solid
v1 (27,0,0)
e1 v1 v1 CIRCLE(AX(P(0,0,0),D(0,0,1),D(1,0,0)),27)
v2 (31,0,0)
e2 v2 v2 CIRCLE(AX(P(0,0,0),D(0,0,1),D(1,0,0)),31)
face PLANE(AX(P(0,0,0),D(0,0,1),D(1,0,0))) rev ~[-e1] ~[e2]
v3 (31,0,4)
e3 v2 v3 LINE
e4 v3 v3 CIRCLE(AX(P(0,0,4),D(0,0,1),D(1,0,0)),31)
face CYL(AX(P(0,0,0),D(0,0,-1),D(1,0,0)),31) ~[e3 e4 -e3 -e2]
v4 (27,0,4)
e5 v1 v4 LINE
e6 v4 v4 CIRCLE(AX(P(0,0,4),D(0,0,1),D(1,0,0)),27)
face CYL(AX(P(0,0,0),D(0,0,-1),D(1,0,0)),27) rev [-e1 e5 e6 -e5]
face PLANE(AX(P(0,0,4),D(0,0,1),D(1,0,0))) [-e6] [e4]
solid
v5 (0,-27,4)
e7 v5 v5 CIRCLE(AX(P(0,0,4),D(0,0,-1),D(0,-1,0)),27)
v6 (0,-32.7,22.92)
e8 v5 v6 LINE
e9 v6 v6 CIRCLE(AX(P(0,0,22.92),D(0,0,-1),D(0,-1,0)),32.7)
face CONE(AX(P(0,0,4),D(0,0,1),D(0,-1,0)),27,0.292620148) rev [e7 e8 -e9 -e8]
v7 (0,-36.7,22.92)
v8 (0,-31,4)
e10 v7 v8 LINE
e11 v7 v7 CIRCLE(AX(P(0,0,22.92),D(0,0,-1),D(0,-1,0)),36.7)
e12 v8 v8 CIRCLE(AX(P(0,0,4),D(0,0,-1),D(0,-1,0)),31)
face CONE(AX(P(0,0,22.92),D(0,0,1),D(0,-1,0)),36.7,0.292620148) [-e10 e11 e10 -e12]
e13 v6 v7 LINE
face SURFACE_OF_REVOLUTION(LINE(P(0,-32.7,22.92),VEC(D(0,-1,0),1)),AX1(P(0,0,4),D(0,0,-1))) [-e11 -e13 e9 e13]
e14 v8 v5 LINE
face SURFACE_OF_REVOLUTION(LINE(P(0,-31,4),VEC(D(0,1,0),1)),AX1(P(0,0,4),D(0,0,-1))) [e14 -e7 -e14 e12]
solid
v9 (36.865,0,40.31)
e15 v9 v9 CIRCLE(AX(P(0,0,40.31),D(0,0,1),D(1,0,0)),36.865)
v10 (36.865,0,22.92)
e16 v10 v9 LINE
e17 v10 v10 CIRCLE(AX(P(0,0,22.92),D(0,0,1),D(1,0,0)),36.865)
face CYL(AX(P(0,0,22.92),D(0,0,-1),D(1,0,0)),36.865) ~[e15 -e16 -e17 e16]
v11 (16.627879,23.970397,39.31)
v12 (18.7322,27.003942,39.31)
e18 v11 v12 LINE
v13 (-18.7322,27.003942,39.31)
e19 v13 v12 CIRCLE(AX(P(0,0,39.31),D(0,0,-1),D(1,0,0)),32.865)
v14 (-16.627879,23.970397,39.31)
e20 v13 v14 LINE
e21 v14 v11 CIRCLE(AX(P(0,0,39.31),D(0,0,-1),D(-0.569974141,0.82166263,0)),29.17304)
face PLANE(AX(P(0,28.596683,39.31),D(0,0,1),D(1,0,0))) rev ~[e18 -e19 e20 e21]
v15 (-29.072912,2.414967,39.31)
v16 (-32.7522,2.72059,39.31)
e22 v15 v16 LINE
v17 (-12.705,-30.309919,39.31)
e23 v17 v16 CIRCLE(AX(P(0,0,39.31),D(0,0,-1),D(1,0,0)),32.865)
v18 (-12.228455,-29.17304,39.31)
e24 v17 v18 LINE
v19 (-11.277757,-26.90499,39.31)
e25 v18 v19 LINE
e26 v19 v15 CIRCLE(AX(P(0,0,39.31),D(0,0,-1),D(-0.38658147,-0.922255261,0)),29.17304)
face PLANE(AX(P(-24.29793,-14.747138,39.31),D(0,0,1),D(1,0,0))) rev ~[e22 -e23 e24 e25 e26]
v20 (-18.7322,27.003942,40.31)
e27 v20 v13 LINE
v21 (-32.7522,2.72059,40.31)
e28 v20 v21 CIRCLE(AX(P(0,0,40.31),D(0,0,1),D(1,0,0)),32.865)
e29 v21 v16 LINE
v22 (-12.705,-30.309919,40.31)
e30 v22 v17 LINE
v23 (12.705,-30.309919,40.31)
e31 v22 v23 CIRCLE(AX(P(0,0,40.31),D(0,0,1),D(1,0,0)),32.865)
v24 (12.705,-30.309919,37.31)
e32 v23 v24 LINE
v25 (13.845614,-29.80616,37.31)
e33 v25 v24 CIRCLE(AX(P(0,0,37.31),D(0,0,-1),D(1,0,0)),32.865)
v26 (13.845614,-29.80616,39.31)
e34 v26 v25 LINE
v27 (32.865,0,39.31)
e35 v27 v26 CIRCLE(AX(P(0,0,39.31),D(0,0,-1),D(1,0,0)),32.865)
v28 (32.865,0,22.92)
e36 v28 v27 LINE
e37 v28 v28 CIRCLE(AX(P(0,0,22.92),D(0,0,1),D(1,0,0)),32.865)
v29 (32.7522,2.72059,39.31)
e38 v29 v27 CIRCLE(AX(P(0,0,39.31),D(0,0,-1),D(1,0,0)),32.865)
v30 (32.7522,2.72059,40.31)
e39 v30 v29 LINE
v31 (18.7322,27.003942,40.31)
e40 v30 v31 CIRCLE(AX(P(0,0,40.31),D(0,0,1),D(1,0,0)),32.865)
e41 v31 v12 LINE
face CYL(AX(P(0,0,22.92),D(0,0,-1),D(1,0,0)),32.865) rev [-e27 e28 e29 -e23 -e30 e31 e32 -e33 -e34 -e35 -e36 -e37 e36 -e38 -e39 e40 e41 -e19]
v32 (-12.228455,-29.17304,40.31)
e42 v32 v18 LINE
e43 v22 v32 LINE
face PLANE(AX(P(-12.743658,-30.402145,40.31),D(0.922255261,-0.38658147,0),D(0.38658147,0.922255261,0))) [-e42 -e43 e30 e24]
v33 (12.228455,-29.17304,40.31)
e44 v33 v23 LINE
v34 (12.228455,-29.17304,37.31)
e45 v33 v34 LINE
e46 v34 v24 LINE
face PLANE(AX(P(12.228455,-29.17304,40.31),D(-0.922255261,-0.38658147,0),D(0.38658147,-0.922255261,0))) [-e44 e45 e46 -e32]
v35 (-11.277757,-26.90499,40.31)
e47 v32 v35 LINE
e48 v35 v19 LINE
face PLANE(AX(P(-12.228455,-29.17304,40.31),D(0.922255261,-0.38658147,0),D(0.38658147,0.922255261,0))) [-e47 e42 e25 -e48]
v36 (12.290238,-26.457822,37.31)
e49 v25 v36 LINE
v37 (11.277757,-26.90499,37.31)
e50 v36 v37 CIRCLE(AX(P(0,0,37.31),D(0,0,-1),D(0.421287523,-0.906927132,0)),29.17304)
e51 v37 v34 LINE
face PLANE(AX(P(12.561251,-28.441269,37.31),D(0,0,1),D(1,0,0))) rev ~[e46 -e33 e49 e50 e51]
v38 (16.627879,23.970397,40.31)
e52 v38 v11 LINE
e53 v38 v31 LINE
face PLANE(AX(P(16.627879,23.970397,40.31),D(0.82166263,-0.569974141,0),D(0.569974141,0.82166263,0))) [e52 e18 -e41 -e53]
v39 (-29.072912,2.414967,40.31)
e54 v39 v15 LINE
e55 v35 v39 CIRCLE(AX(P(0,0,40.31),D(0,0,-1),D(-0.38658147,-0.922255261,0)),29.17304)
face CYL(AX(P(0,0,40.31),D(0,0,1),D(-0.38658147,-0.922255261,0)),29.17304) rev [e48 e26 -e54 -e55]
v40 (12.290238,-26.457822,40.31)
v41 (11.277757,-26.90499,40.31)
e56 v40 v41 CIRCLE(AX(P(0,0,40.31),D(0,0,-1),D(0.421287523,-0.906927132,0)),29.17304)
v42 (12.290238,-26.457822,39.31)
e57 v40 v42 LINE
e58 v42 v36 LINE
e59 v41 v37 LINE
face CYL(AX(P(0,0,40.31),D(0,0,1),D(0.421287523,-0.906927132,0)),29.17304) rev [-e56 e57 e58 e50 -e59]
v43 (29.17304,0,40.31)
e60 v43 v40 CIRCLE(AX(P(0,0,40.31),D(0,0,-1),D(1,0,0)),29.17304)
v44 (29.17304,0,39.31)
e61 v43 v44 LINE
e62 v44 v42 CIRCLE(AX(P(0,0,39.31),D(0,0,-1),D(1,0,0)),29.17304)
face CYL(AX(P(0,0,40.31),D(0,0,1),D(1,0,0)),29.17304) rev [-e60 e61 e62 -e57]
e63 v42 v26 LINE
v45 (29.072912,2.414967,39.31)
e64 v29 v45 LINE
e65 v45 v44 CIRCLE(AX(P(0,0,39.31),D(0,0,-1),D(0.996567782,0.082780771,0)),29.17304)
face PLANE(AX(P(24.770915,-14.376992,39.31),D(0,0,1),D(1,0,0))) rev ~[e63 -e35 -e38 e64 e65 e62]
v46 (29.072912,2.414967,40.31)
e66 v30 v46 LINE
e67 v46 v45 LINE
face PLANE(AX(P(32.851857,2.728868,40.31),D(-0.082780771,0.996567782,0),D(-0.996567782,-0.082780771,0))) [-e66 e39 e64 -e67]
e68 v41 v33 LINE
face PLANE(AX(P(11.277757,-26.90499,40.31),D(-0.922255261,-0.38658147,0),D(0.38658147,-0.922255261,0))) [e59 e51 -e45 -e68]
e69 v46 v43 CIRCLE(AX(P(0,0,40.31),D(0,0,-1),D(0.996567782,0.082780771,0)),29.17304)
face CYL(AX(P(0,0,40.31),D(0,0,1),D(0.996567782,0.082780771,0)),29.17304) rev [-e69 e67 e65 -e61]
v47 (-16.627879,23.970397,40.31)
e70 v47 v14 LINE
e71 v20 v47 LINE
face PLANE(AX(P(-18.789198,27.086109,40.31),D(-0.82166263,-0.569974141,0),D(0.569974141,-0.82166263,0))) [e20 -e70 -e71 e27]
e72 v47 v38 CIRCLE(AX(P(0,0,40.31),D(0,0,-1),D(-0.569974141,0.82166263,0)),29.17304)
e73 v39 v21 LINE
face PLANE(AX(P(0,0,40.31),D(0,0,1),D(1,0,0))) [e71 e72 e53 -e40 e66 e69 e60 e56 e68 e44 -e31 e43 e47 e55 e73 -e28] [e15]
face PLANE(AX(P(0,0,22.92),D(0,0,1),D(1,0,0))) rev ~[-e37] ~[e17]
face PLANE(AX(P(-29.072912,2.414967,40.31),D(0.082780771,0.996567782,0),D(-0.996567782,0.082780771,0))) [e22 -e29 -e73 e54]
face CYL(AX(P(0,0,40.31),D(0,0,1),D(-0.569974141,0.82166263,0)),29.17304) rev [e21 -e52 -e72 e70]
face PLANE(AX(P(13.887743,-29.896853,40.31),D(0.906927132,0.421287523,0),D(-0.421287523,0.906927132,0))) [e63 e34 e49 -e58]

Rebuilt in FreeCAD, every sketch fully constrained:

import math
import FreeCAD as App
import Part
import Sketcher


def add_polygon(sketch, points):
    """Adds a closed chain of lines whose ends are joined by coincident constraints."""
    first, n = sketch.GeometryCount, len(points)
    for a, b in zip(points, points[1:] + points[:1]):
        sketch.addGeometry(Part.LineSegment(App.Vector(*a, 0), App.Vector(*b, 0)), False)
    for i in range(n):
        sketch.addConstraint(Sketcher.Constraint("Coincident", first + i, 2, first + (i + 1) % n, 1))

doc = App.newDocument("Part")
body = doc.addObject("PartDesign::Body", "Body")

# Sketch on XY plane
sketch1 = doc.addObject("Sketcher::SketchObject", "Sketch")
body.addObject(sketch1)
sketch1.AttachmentSupport = (doc.XY_Plane, [""])
sketch1.MapMode = "FlatFace"
sketch1.addGeometry(Part.Circle(App.Vector(0, 0, 0), App.Vector(0, 0, 1), 31), False)
sketch1.addGeometry(Part.Circle(App.Vector(0, 0, 0), App.Vector(0, 0, 1), 27), False)
sketch1.addConstraint(Sketcher.Constraint("Coincident", 0, 3, -1, 1))
sketch1.addConstraint(Sketcher.Constraint("Coincident", 1, 3, -1, 1))
sketch1.addConstraint(Sketcher.Constraint("Diameter", 0, 62.0))
sketch1.addConstraint(Sketcher.Constraint("Diameter", 1, 54.0))
pad1 = doc.addObject("PartDesign::Pad", "Pad")
body.addObject(pad1)
pad1.Profile = sketch1
pad1.Length = 4
body2 = doc.addObject("PartDesign::Body", "Body001")

# Sketch on XY plane
sketch2 = doc.addObject("Sketcher::SketchObject", "Sketch001")
body2.addObject(sketch2)
sketch2.AttachmentSupport = (doc.getObject("XY_Plane001"), [""])
sketch2.MapMode = "FlatFace"
sketch2.AttachmentOffset = App.Placement(App.Vector(0, 0, 22.92), App.Rotation())
sketch2.addGeometry(Part.Circle(App.Vector(0, 0, 0), App.Vector(0, 0, 1), 36.865), False)
sketch2.addGeometry(Part.Circle(App.Vector(0, 0, 0), App.Vector(0, 0, 1), 32.865), False)
sketch2.addConstraint(Sketcher.Constraint("Coincident", 0, 3, -1, 1))
sketch2.addConstraint(Sketcher.Constraint("Coincident", 1, 3, -1, 1))
sketch2.addConstraint(Sketcher.Constraint("Diameter", 0, 73.73))
sketch2.addConstraint(Sketcher.Constraint("Diameter", 1, 65.73))
pad2 = doc.addObject("PartDesign::Pad", "Pad001")
body2.addObject(pad2)
pad2.Profile = sketch2
pad2.Length = 17.39

# Sketch on XY plane
sketch3 = doc.addObject("Sketcher::SketchObject", "Sketch002")
body2.addObject(sketch3)
sketch3.AttachmentSupport = (doc.getObject("XY_Plane001"), [""])
sketch3.MapMode = "FlatFace"
sketch3.AttachmentOffset = App.Placement(App.Vector(0, 0, 40.31), App.Rotation())
sketch3.addGeometry(Part.ArcOfCircle(Part.Circle(App.Vector(0, 0, 0), App.Vector(0, 0, 1), 32.965), math.radians(175.251577), math.radians(247.258045)), False)
sketch3.addGeometry(Part.LineSegment(App.Vector(-12.743658, -30.402145, 0), App.Vector(-12.228455, -29.17304, 0)), False)
sketch3.addGeometry(Part.LineSegment(App.Vector(-12.228455, -29.17304, 0), App.Vector(-11.277757, -26.90499, 0)), False)
sketch3.addGeometry(Part.ArcOfCircle(Part.Circle(App.Vector(0, 0, 0), App.Vector(0, 0, 1), 29.17304), math.radians(175.251577), math.radians(247.258045)), False)
sketch3.addGeometry(Part.LineSegment(App.Vector(-29.072912, 2.414967, 0), App.Vector(-32.851857, 2.728868, 0)), False)
sketch3.addGeometry(Part.LineSegment(App.Vector(16.627879, 23.970397, 0), App.Vector(18.789198, 27.086109, 0)), False)
sketch3.addGeometry(Part.ArcOfCircle(Part.Circle(App.Vector(0, 0, 0), App.Vector(0, 0, 1), 32.965), math.radians(55.251577), math.radians(124.748423)), False)
sketch3.addGeometry(Part.LineSegment(App.Vector(-18.789198, 27.086109, 0), App.Vector(-16.627879, 23.970397, 0)), False)
sketch3.addGeometry(Part.ArcOfCircle(Part.Circle(App.Vector(0, 0, 0), App.Vector(0, 0, 1), 29.17304), math.radians(55.251577), math.radians(124.748423)), False)
sketch3.addGeometry(Part.ArcOfCircle(Part.Circle(App.Vector(0, 0, 0), App.Vector(0, 0, 1), 32.965), math.radians(-65.084099), math.radians(0)), False)
sketch3.addGeometry(Part.ArcOfCircle(Part.Circle(App.Vector(0, 0, 0), App.Vector(0, 0, 1), 32.965), math.radians(0), math.radians(4.748423)), False)
sketch3.addGeometry(Part.LineSegment(App.Vector(32.851857, 2.728868, 0), App.Vector(29.072912, 2.414967, 0)), False)
sketch3.addGeometry(Part.ArcOfCircle(Part.Circle(App.Vector(0, 0, 0), App.Vector(0, 0, 1), 29.17304), math.radians(0), math.radians(4.748423)), False)
sketch3.addGeometry(Part.ArcOfCircle(Part.Circle(App.Vector(0, 0, 0), App.Vector(0, 0, 1), 29.17304), math.radians(-65.084099), math.radians(0)), False)
sketch3.addGeometry(Part.LineSegment(App.Vector(12.290238, -26.457822, 0), App.Vector(13.887743, -29.896853, 0)), False)
sketch3.addConstraint(Sketcher.Constraint("Coincident", 0, 2, 1, 1))
sketch3.addConstraint(Sketcher.Constraint("Coincident", 1, 2, 2, 1))
sketch3.addConstraint(Sketcher.Constraint("Coincident", 2, 2, 3, 2))
sketch3.addConstraint(Sketcher.Constraint("Coincident", 3, 1, 4, 1))
sketch3.addConstraint(Sketcher.Constraint("Coincident", 4, 2, 0, 1))
sketch3.addConstraint(Sketcher.Constraint("Coincident", 5, 2, 6, 1))
sketch3.addConstraint(Sketcher.Constraint("Coincident", 6, 2, 7, 1))
sketch3.addConstraint(Sketcher.Constraint("Coincident", 7, 2, 8, 2))
sketch3.addConstraint(Sketcher.Constraint("Coincident", 8, 1, 5, 1))
sketch3.addConstraint(Sketcher.Constraint("Tangent", 9, 2, 10, 1))
sketch3.addConstraint(Sketcher.Constraint("Coincident", 10, 2, 11, 1))
sketch3.addConstraint(Sketcher.Constraint("Coincident", 11, 2, 12, 2))
sketch3.addConstraint(Sketcher.Constraint("Tangent", 12, 1, 13, 2))
sketch3.addConstraint(Sketcher.Constraint("Coincident", 13, 1, 14, 1))
sketch3.addConstraint(Sketcher.Constraint("Coincident", 14, 2, 9, 1))
sketch3.addConstraint(Sketcher.Constraint("Coincident", 0, 3, -1, 1))
sketch3.addConstraint(Sketcher.Constraint("Coincident", 3, 3, -1, 1))
sketch3.addConstraint(Sketcher.Constraint("Coincident", 6, 3, -1, 1))
sketch3.addConstraint(Sketcher.Constraint("Coincident", 8, 3, -1, 1))
sketch3.addConstraint(Sketcher.Constraint("Coincident", 9, 3, -1, 1))
sketch3.addConstraint(Sketcher.Constraint("Coincident", 12, 3, -1, 1))
sketch3.addConstraint(Sketcher.Constraint("Equal", 0, 6))
sketch3.addConstraint(Sketcher.Constraint("Equal", 3, 8))
sketch3.addConstraint(Sketcher.Constraint("Equal", 6, 9))
sketch3.addConstraint(Sketcher.Constraint("Equal", 9, 10))
sketch3.addConstraint(Sketcher.Constraint("Equal", 8, 12))
sketch3.addConstraint(Sketcher.Constraint("Equal", 12, 13))
sketch3.addConstraint(Sketcher.Constraint("PointOnObject", 9, 2, -1))
sketch3.addConstraint(Sketcher.Constraint("PointOnObject", 12, 1, -1))
sketch3.addConstraint(Sketcher.Constraint("Parallel", 1, 2))
sketch3.addConstraint(Sketcher.Constraint("Horizontal", 5, 2, 6, 2))
sketch3.addConstraint(Sketcher.Constraint("Horizontal", 7, 2, 8, 1))
sketch3.addConstraint(Sketcher.Constraint("Horizontal", 4, 2, 10, 2))
sketch3.addConstraint(Sketcher.Constraint("Horizontal", 3, 1, 11, 2))
sketch3.addConstraint(Sketcher.Constraint("Radius", 0, 32.965))
sketch3.addConstraint(Sketcher.Constraint("Radius", 3, 29.17304))
sketch3.addConstraint(Sketcher.Constraint("DistanceX", 1, 2, 2, 2, 0.950698))
sketch3.addConstraint(Sketcher.Constraint("DistanceX", 0, 2, 2, 2, 1.465901))
sketch3.addConstraint(Sketcher.Constraint("DistanceY", 3, 1, 4, 2, 0.313901))
sketch3.addConstraint(Sketcher.Constraint("DistanceX", 2, 2, 14, 2, 25.1655))
sketch3.addConstraint(Sketcher.Constraint("DistanceX", 0, 2, -1, 1, 12.743658))
sketch3.addConstraint(Sketcher.Constraint("DistanceX", 3, 1, -1, 1, 29.072912))
sketch3.addConstraint(Sketcher.Constraint("DistanceY", -1, 1, 5, 2, 27.086109))
sketch3.addConstraint(Sketcher.Constraint("DistanceX", 7, 2, -1, 1, 16.627879))
sketch3.addConstraint(Sketcher.Constraint("DistanceY", 13, 1, -1, 1, 26.457822))
pad3 = doc.addObject("PartDesign::Pad", "Pad002")
body2.addObject(pad3)
pad3.Profile = sketch3
pad3.Length = 1
pad3.Reversed = True

# Sketch on XY plane
sketch4 = doc.addObject("Sketcher::SketchObject", "Sketch003")
body2.addObject(sketch4)
sketch4.AttachmentSupport = (doc.getObject("XY_Plane001"), [""])
sketch4.MapMode = "FlatFace"
sketch4.AttachmentOffset = App.Placement(App.Vector(0, 0, 40.31), App.Rotation())
sketch4.addGeometry(Part.ArcOfCircle(Part.Circle(App.Vector(0, 0, 0), App.Vector(0, 0, 1), 32.965), math.radians(-67.258045), math.radians(-65.084099)), False)
sketch4.addGeometry(Part.LineSegment(App.Vector(13.887743, -29.896853, 0), App.Vector(12.290238, -26.457822, 0)), False)
sketch4.addGeometry(Part.ArcOfCircle(Part.Circle(App.Vector(0, 0, 0), App.Vector(0, 0, 1), 29.17304), math.radians(-67.258045), math.radians(-65.084099)), False)
sketch4.addGeometry(Part.LineSegment(App.Vector(11.277757, -26.90499, 0), App.Vector(12.228455, -29.17304, 0)), False)
sketch4.addGeometry(Part.LineSegment(App.Vector(12.228455, -29.17304, 0), App.Vector(12.743658, -30.402145, 0)), False)
sketch4.addConstraint(Sketcher.Constraint("Coincident", 0, 2, 1, 1))
sketch4.addConstraint(Sketcher.Constraint("Coincident", 1, 2, 2, 2))
sketch4.addConstraint(Sketcher.Constraint("Coincident", 2, 1, 3, 1))
sketch4.addConstraint(Sketcher.Constraint("Coincident", 3, 2, 4, 1))
sketch4.addConstraint(Sketcher.Constraint("Coincident", 4, 2, 0, 1))
sketch4.addConstraint(Sketcher.Constraint("Coincident", 0, 3, -1, 1))
sketch4.addConstraint(Sketcher.Constraint("Coincident", 2, 3, -1, 1))
sketch4.addConstraint(Sketcher.Constraint("Parallel", 3, 4))
sketch4.addConstraint(Sketcher.Constraint("Radius", 0, 32.965))
sketch4.addConstraint(Sketcher.Constraint("Radius", 2, 29.17304))
sketch4.addConstraint(Sketcher.Constraint("DistanceX", 2, 1, 3, 2, 0.950698))
sketch4.addConstraint(Sketcher.Constraint("DistanceX", 2, 1, 4, 2, 1.465901))
sketch4.addConstraint(Sketcher.Constraint("DistanceY", 1, 2, -1, 1, 26.457822))
sketch4.addConstraint(Sketcher.Constraint("DistanceY", 2, 1, -1, 1, 26.90499))
sketch4.addConstraint(Sketcher.Constraint("DistanceY", 0, 2, 1, 2, 3.439031))
pad4 = doc.addObject("PartDesign::Pad", "Pad003")
body2.addObject(pad4)
pad4.Profile = sketch4
pad4.Length = 3
pad4.Reversed = True
body3 = doc.addObject("PartDesign::Body", "Body002")

# Sketch on XZ plane
sketch5 = doc.addObject("Sketcher::SketchObject", "Sketch004")
body3.addObject(sketch5)
sketch5.AttachmentSupport = (doc.getObject("XZ_Plane002"), [""])
sketch5.MapMode = "FlatFace"
add_polygon(sketch5, [(-27, 4), (-32.7, 22.92), (-36.7, 22.92), (-31, 4)])  # lines 0-3
sketch5.addConstraint(Sketcher.Constraint("Horizontal", 1))
sketch5.addConstraint(Sketcher.Constraint("Horizontal", 3))
sketch5.addConstraint(Sketcher.Constraint("Parallel", 0, 2))
sketch5.addConstraint(Sketcher.Constraint("DistanceX", 1, 2, 1, 1, 4.0))
sketch5.addConstraint(Sketcher.Constraint("DistanceX", 2, 2, -1, 1, 31.0))
sketch5.addConstraint(Sketcher.Constraint("DistanceY", -1, 1, 2, 2, 4.0))
sketch5.addConstraint(Sketcher.Constraint("DistanceX", 0, 2, -1, 1, 32.7))
sketch5.addConstraint(Sketcher.Constraint("DistanceY", -1, 1, 0, 2, 22.92))

# Sketch on XY plane
sketch6 = doc.addObject("Sketcher::SketchObject", "Sketch005")
body3.addObject(sketch6)
sketch6.AttachmentSupport = (doc.getObject("XY_Plane002"), [""])
sketch6.MapMode = "FlatFace"
sketch6.AttachmentOffset = App.Placement(App.Vector(0, 0, 4), App.Rotation())
sketch6.addGeometry(Part.Circle(App.Vector(0, 0, 0), App.Vector(0, 0, 1), 27), False)
sketch6.addConstraint(Sketcher.Constraint("Coincident", 0, 3, -1, 1))
sketch6.addConstraint(Sketcher.Constraint("Diameter", 0, 54.0))
doc.recompute()

additivepipe = doc.addObject("PartDesign::AdditivePipe", "AdditivePipe")
body3.addObject(additivepipe)
additivepipe.Profile = sketch5
additivepipe.Spine = (sketch6, ["Edge1"])

doc.recompute()
